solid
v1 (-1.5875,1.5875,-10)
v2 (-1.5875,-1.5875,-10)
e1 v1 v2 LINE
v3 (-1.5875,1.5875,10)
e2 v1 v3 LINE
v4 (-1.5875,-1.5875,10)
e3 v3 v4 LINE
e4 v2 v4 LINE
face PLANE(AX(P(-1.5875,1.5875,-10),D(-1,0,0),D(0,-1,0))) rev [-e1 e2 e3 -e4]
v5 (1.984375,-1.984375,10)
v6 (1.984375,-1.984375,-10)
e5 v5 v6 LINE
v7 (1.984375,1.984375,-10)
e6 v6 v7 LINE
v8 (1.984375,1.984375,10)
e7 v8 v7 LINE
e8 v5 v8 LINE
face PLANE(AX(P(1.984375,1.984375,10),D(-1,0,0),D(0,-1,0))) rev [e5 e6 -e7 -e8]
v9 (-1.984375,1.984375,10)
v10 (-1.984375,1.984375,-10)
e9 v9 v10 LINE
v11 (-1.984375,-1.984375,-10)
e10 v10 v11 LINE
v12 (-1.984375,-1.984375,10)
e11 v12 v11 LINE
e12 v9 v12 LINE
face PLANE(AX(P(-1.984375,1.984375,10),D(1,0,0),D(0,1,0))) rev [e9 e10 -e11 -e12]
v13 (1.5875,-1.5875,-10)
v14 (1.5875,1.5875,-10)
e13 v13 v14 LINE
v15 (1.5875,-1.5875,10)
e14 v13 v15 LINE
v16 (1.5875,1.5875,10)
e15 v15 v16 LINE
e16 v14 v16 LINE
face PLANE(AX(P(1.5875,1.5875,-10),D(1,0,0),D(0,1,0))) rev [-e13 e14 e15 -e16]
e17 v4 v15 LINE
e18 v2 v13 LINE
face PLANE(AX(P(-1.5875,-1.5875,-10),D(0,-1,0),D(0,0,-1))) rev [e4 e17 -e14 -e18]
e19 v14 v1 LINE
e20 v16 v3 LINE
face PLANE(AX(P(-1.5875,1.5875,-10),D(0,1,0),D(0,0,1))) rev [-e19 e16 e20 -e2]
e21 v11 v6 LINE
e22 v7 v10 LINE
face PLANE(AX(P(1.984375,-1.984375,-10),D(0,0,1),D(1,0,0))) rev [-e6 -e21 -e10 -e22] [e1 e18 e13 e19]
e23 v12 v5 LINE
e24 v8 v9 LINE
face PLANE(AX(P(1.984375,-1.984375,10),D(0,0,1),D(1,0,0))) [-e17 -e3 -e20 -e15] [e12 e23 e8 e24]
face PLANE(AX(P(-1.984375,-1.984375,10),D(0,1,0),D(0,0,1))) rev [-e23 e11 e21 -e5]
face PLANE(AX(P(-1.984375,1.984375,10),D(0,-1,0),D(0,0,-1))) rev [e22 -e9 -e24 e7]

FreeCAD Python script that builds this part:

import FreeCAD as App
import Part
import Sketcher
Q = App.Units.Quantity


def add_polygon(sketch, points):
    """Adds a closed chain of lines whose ends are joined by coincident constraints."""
    first, n = sketch.GeometryCount, len(points)
    for a, b in zip(points, points[1:] + points[:1]):
        sketch.addGeometry(Part.LineSegment(App.Vector(*a, 0), App.Vector(*b, 0)), False)
    for i in range(n):
        sketch.addConstraint(Sketcher.Constraint("Coincident", first + i, 2, first + (i + 1) % n, 1))

doc = App.newDocument("Part")
body = doc.addObject("PartDesign::Body", "Body")

# Sketch on XY plane
sketch1 = body.newObject("Sketcher::SketchObject", "Sketch")
sketch1.AttachmentSupport = (doc.getObject("XY_Plane"), [""])
sketch1.MapMode = "FlatFace"
add_polygon(sketch1, [(-2, 2), (-2, -2), (2, -2), (2, 2)])  # lines 0-3
sketch1.addConstraint(Sketcher.Constraint("Vertical", 0))
sketch1.addConstraint(Sketcher.Constraint("Horizontal", 1))
sketch1.addConstraint(Sketcher.Constraint("Vertical", 2))
sketch1.addConstraint(Sketcher.Constraint("Horizontal", 3))
sketch1.addConstraint(Sketcher.Constraint("Symmetric", 0, 2, 2, 2, -1, 1))
sketch1.addConstraint(Sketcher.Constraint("Equal", 3, 0))
sketch1.addConstraint(Sketcher.Constraint("DistanceX", 1, 1, 1, 2, Q("0.15625 in")))
pad1 = body.newObject("PartDesign::Pad", "Pad")
pad1.Profile = sketch1
pad1.Length = 20
pad1.Midplane = True

# Sketch on XY plane
sketch2 = body.newObject("Sketcher::SketchObject", "Sketch001")
sketch2.AttachmentSupport = (doc.getObject("XY_Plane"), [""])
sketch2.MapMode = "FlatFace"
sketch2.AttachmentOffset = App.Placement(App.Vector(0, 0, 10), App.Rotation())
add_polygon(sketch2, [(-1.6, 1.6), (-1.6, -1.6), (1.6, -1.6), (1.6, 1.6)])  # lines 0-3
sketch2.addConstraint(Sketcher.Constraint("Vertical", 0))
sketch2.addConstraint(Sketcher.Constraint("Horizontal", 1))
sketch2.addConstraint(Sketcher.Constraint("Vertical", 2))
sketch2.addConstraint(Sketcher.Constraint("Horizontal", 3))
sketch2.addConstraint(Sketcher.Constraint("Symmetric", 0, 2, 2, 2, -1, 1))
sketch2.addConstraint(Sketcher.Constraint("Equal", 3, 0))
sketch2.addConstraint(Sketcher.Constraint("DistanceX", 1, 1, 1, 2, Q("0.125 in")))
pocket1 = body.newObject("PartDesign::Pocket", "Pocket")
pocket1.Profile = sketch2
pocket1.Type = "ThroughAll"

doc.recompute()
